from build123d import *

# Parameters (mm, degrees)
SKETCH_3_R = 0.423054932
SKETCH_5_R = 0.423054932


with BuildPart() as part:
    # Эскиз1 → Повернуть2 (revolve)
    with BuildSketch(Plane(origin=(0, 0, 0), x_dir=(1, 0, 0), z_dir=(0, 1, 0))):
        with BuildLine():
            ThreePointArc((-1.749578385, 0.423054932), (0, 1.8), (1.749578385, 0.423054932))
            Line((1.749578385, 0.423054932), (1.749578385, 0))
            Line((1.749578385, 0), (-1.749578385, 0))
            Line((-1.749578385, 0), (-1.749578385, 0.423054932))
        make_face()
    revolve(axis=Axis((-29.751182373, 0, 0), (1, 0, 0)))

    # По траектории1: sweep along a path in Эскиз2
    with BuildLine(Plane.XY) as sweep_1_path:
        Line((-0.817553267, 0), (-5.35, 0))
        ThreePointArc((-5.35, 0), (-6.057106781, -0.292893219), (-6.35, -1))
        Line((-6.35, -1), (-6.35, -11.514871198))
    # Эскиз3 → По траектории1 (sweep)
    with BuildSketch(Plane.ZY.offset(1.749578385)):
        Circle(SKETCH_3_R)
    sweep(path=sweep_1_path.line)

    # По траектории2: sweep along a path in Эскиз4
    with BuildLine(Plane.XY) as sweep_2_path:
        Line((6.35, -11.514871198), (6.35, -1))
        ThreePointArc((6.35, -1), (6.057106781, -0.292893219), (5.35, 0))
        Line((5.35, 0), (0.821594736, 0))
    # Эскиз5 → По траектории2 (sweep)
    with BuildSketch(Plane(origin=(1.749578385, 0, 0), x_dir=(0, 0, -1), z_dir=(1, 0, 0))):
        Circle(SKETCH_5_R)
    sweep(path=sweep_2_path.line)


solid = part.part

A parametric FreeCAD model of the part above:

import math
import FreeCAD as App
import Part
import Sketcher
Q = App.Units.Quantity

doc = App.newDocument("Part")
body = doc.addObject("PartDesign::Body", "Body")

# Sketch on XZ plane
sketch1 = body.newObject("Sketcher::SketchObject", "Sketch")
sketch1.AttachmentSupport = (doc.getObject("XZ_Plane"), [""])
sketch1.MapMode = "FlatFace"
sketch1.addGeometry(Part.ArcOfCircle(Part.Circle(App.Vector(0, 0, 0), App.Vector(0, 0, 1), 1.8), math.radians(-166), math.radians(-14)), False)
sketch1.addGeometry(Part.LineSegment(App.Vector(-1.75, -0.42, 0), App.Vector(-1.75, 0, 0)), False)
sketch1.addGeometry(Part.LineSegment(App.Vector(-1.75, 0, 0), App.Vector(1.75, 0, 0)), False)
sketch1.addGeometry(Part.LineSegment(App.Vector(1.75, 0, 0), App.Vector(1.75, -0.42, 0)), False)
sketch1.addConstraint(Sketcher.Constraint("Coincident", 0, 1, 1, 1))
sketch1.addConstraint(Sketcher.Constraint("Coincident", 1, 2, 2, 1))
sketch1.addConstraint(Sketcher.Constraint("Coincident", 2, 2, 3, 1))
sketch1.addConstraint(Sketcher.Constraint("Coincident", 3, 2, 0, 2))
sketch1.addConstraint(Sketcher.Constraint("Vertical", 1))
sketch1.addConstraint(Sketcher.Constraint("Horizontal", 2))
sketch1.addConstraint(Sketcher.Constraint("Vertical", 3))
sketch1.addConstraint(Sketcher.Constraint("Coincident", 0, 3, -1, 1))
sketch1.addConstraint(Sketcher.Constraint("Symmetric", 1, 2, 2, 2, -1, 1))
sketch1.addConstraint(Sketcher.Constraint("Radius", 0, Q("1.8 mm")))
sketch1.addConstraint(Sketcher.Constraint("DistanceX", 2, 1, 2, 2, Q("3.499157 mm")))
revolution = body.newObject("PartDesign::Revolution", "Revolution")
revolution.Profile = sketch1
revolution.ReferenceAxis = (sketch1, ["H_Axis"])
revolution.Angle = 360

# Sketch on YZ plane
sketch2 = body.newObject("Sketcher::SketchObject", "Sketch001")
sketch2.AttachmentSupport = (doc.getObject("YZ_Plane"), [""])
sketch2.MapMode = "FlatFace"
sketch2.AttachmentOffset = App.Placement(App.Vector(0, 0, -1.749578), App.Rotation())
sketch2.addGeometry(Part.Circle(App.Vector(0, 0, 0), App.Vector(0, 0, 1), 0.42), False)
sketch2.addConstraint(Sketcher.Constraint("Coincident", 0, 3, -1, 1))
sketch2.addConstraint(Sketcher.Constraint("Diameter", 0, Q("0.84611 mm")))

# Sketch on XY plane
sketch3 = body.newObject("Sketcher::SketchObject", "Sketch002")
sketch3.AttachmentSupport = (doc.getObject("XY_Plane"), [""])
sketch3.MapMode = "FlatFace"
sketch3.addGeometry(Part.LineSegment(App.Vector(-0.8, 0, 0), App.Vector(-5.3, 0, 0)), False)
sketch3.addGeometry(Part.ArcOfCircle(Part.Circle(App.Vector(-5.3, -1, 0), App.Vector(0, 0, 1), 1), math.radians(90), math.radians(180)), False)
sketch3.addGeometry(Part.LineSegment(App.Vector(-6.3, -1, 0), App.Vector(-6.3, -11.5, 0)), False)
sketch3.addConstraint(Sketcher.Constraint("Tangent", 0, 2, 1, 1))
sketch3.addConstraint(Sketcher.Constraint("Tangent", 1, 2, 2, 1))
sketch3.addConstraint(Sketcher.Constraint("Horizontal", 0))
sketch3.addConstraint(Sketcher.Constraint("Vertical", 2))
sketch3.addConstraint(Sketcher.Constraint("PointOnObject", 0, 1, -1))
sketch3.addConstraint(Sketcher.Constraint("Radius", 1, Q("1 mm")))
sketch3.addConstraint(Sketcher.Constraint("DistanceX", 1, 3, -1, 1, Q("5.35 mm")))
sketch3.addConstraint(Sketcher.Constraint("DistanceY", 2, 2, 2, 1, Q("10.514871 mm")))
sketch3.addConstraint(Sketcher.Constraint("DistanceX", 0, 2, 0, 1, Q("4.532447 mm")))
doc.recompute()

additivepipe = body.newObject("PartDesign::AdditivePipe", "AdditivePipe")
additivepipe.Profile = sketch2
additivepipe.Spine = (sketch3, ["Edge1", "Edge2", "Edge3"])

# Sketch on YZ plane
sketch4 = body.newObject("Sketcher::SketchObject", "Sketch003")
sketch4.AttachmentSupport = (doc.getObject("YZ_Plane"), [""])
sketch4.MapMode = "FlatFace"
sketch4.AttachmentOffset = App.Placement(App.Vector(0, 0, 1.749578), App.Rotation())
sketch4.addGeometry(Part.Circle(App.Vector(0, 0, 0), App.Vector(0, 0, 1), 0.42), False)
sketch4.addConstraint(Sketcher.Constraint("Coincident", 0, 3, -1, 1))
sketch4.addConstraint(Sketcher.Constraint("Diameter", 0, Q("0.84611 mm")))

# Sketch on XY plane
sketch5 = body.newObject("Sketcher::SketchObject", "Sketch004")
sketch5.AttachmentSupport = (doc.getObject("XY_Plane"), [""])
sketch5.MapMode = "FlatFace"
sketch5.addGeometry(Part.LineSegment(App.Vector(6.3, -11.5, 0), App.Vector(6.3, -1, 0)), False)
sketch5.addGeometry(Part.ArcOfCircle(Part.Circle(App.Vector(5.3, -1, 0), App.Vector(0, 0, 1), 1), math.radians(0), math.radians(90)), False)
sketch5.addGeometry(Part.LineSegment(App.Vector(5.3, 0, 0), App.Vector(0.8, 0, 0)), False)
sketch5.addConstraint(Sketcher.Constraint("Tangent", 0, 2, 1, 1))
sketch5.addConstraint(Sketcher.Constraint("Tangent", 1, 2, 2, 1))
sketch5.addConstraint(Sketcher.Constraint("Vertical", 0))
sketch5.addConstraint(Sketcher.Constraint("Horizontal", 2))
sketch5.addConstraint(Sketcher.Constraint("PointOnObject", 1, 2, -1))
sketch5.addConstraint(Sketcher.Constraint("Radius", 1, Q("1 mm")))
sketch5.addConstraint(Sketcher.Constraint("DistanceX", -1, 1, 1, 3, Q("5.35 mm")))
sketch5.addConstraint(Sketcher.Constraint("DistanceY", 0, 1, 0, 2, Q("10.514871 mm")))
sketch5.addConstraint(Sketcher.Constraint("DistanceX", 2, 2, 2, 1, Q("4.528405 mm")))
doc.recompute()

additivepipe2 = body.newObject("PartDesign::AdditivePipe", "AdditivePipe001")
additivepipe2.Profile = sketch4
additivepipe2.Spine = (sketch5, ["Edge1", "Edge2", "Edge3"])

doc.recompute()
